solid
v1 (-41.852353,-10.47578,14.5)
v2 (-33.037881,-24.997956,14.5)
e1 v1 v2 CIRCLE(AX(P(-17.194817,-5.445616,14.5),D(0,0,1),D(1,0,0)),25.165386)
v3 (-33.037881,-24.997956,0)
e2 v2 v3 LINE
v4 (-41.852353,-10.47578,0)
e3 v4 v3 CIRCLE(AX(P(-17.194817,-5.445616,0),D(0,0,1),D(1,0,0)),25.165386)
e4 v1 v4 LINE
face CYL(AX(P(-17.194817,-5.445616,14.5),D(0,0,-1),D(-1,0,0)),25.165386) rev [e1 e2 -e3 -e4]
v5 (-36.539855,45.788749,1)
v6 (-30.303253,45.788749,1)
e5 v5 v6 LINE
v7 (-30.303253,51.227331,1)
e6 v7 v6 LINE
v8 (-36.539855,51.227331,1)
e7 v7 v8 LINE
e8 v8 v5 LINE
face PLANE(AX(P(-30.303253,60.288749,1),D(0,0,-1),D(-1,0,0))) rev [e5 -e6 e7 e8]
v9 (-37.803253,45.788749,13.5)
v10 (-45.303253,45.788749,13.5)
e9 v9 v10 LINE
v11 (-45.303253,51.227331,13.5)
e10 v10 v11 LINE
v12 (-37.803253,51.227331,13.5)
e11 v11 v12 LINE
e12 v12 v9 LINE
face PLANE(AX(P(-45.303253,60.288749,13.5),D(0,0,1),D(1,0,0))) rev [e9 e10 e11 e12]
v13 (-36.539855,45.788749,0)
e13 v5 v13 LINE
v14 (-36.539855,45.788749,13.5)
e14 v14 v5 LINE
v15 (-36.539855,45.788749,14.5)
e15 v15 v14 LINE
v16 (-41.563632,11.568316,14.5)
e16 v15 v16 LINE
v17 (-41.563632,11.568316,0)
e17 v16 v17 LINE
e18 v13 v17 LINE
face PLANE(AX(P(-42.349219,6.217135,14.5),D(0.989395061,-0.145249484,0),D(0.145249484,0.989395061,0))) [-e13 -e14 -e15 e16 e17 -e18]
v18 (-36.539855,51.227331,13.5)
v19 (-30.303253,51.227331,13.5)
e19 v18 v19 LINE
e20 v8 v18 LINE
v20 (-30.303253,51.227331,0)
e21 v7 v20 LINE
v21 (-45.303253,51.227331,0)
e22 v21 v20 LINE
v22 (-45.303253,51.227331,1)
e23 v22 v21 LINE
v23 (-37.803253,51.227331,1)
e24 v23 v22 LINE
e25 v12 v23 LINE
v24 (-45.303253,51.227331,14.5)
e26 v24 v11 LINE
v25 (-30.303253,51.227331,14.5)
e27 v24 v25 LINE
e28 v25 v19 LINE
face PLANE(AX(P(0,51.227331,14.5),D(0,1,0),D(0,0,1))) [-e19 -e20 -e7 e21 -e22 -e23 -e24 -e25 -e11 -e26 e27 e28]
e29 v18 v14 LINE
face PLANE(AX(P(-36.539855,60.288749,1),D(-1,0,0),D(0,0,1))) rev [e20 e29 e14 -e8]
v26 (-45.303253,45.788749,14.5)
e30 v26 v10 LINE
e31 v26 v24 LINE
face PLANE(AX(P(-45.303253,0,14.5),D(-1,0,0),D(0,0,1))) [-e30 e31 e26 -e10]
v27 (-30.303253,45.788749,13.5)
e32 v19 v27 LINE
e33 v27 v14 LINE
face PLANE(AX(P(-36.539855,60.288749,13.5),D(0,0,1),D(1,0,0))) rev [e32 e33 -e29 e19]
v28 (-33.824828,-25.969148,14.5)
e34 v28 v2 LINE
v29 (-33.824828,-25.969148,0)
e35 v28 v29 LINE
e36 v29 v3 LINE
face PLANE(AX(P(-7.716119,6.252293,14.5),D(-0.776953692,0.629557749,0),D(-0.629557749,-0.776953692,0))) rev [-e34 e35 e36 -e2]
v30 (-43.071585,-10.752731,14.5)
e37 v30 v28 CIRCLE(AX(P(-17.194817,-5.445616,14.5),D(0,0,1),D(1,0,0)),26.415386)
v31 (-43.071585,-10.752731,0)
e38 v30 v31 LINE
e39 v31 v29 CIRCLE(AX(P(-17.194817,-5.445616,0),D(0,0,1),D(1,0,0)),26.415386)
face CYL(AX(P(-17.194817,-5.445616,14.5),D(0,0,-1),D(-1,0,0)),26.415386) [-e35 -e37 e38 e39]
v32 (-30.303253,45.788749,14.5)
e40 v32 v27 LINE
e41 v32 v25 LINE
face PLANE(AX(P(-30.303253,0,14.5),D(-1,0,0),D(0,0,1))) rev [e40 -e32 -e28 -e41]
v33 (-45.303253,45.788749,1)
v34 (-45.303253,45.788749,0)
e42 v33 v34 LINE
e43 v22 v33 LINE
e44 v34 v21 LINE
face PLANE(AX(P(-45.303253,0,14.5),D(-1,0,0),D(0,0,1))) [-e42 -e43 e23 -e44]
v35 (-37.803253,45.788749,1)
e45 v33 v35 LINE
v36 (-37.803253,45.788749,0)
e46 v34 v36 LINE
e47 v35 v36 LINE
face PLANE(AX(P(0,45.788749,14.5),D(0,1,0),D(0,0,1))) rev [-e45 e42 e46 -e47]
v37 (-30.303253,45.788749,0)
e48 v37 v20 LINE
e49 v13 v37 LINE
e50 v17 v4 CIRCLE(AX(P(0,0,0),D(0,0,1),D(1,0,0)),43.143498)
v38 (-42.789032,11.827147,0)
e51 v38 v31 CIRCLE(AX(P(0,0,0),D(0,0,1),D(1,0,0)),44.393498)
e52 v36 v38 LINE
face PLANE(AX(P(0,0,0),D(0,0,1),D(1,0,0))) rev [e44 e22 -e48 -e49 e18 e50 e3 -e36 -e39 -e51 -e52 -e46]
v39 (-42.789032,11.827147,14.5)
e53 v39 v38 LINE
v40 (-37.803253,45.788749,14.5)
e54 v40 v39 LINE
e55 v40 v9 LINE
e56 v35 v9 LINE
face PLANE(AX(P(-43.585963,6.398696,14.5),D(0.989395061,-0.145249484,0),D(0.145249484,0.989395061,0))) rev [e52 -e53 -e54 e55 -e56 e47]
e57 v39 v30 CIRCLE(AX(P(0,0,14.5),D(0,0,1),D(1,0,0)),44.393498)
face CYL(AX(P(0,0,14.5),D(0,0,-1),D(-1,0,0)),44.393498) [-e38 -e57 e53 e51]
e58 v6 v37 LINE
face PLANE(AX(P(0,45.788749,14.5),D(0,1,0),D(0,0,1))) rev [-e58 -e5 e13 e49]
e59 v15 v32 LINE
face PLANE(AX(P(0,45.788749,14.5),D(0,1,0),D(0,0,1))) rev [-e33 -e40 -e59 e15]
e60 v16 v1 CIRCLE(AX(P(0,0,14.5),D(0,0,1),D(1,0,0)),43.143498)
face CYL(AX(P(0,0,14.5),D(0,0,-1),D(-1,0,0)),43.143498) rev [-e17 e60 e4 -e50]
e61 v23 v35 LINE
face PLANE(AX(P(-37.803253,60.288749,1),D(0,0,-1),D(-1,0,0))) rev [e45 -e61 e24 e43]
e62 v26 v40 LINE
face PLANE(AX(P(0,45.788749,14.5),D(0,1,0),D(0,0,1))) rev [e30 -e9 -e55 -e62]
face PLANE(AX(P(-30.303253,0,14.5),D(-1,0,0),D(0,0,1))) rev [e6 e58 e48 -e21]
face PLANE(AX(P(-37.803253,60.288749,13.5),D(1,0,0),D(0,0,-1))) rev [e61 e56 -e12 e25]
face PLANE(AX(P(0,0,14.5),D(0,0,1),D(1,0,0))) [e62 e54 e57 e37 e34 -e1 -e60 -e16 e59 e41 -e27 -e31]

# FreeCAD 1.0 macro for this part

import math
import FreeCAD as App
import Part
import Sketcher
from FreeCAD import Vector

doc = App.newDocument("Part")
params = doc.addObject("Spreadsheet::Sheet", "Params")
for row, (alias, value) in enumerate([
    ("sketch1_width", "15 mm"),
    ("sketch1_width2", "7.5 mm"),
    ("sketch1_length", "1.25 mm"),
    ("pad1_length", "14.5 mm"),
    ("sketch2_width", "7.5 mm"),
    ("sketch2_height", "12.5 mm"),
    ("pocket1_length", "14.5 mm"),
    ("sketch3_height", "12.5 mm"),
    ("pocket2_length", "14.5 mm"),
], start=1):
    params.set(f"A{row}", alias)
    params.set(f"B{row}", "=" + value)
    params.setAlias(f"B{row}", alias)

body = doc.addObject("PartDesign::Body", "Body")

sketch1 = body.newObject("Sketcher::SketchObject", "Sketch")
sketch1.AttachmentSupport = (doc.getObject("XY_Plane"), [""])
sketch1.MapMode = "FlatFace"
sketch1.addGeometry(Part.LineSegment(Vector(-30.3, 45.8, 0), Vector(-30.3, 51.2, 0)), False)
sketch1.addGeometry(Part.LineSegment(Vector(-30.3, 51.2, 0), Vector(-45.3, 51.2, 0)), False)
sketch1.addGeometry(Part.LineSegment(Vector(-45.3, 51.2, 0), Vector(-45.3, 45.8, 0)), False)
sketch1.addGeometry(Part.LineSegment(Vector(-45.3, 45.8, 0), Vector(-37.8, 45.8, 0)), False)
sketch1.addGeometry(Part.LineSegment(Vector(-37.8, 45.8, 0), Vector(-42.8, 11.8, 0)), False)
sketch1.addGeometry(Part.ArcOfCircle(Part.Circle(Vector(0, 0, 0), Vector(0, 0, 1), 44.4), math.radians(165), math.radians(194)), False)
sketch1.addGeometry(Part.ArcOfCircle(Part.Circle(Vector(-17.2, -5.4, 0), Vector(0, 0, 1), 26.4), math.radians(-168), math.radians(-129)), False)
sketch1.addGeometry(Part.LineSegment(Vector(-33.8, -26, 0), Vector(-33, -25, 0)), False)
sketch1.addGeometry(Part.ArcOfCircle(Part.Circle(Vector(-17.2, -5.4, 0), Vector(0, 0, 1), 25.2), math.radians(-168), math.radians(-129)), False)
sketch1.addGeometry(Part.ArcOfCircle(Part.Circle(Vector(0, 0, 0), Vector(0, 0, 1), 43.1), math.radians(164), math.radians(194)), False)
sketch1.addGeometry(Part.LineSegment(Vector(-41.6, 11.6, 0), Vector(-36.5, 45.8, 0)), False)
sketch1.addGeometry(Part.LineSegment(Vector(-36.5, 45.8, 0), Vector(-30.3, 45.8, 0)), False)
sketch1.addConstraint(Sketcher.Constraint("Coincident", 0, 2, 1, 1))
sketch1.addConstraint(Sketcher.Constraint("Coincident", 1, 2, 2, 1))
sketch1.addConstraint(Sketcher.Constraint("Coincident", 2, 2, 3, 1))
sketch1.addConstraint(Sketcher.Constraint("Coincident", 3, 2, 4, 1))
sketch1.addConstraint(Sketcher.Constraint("Coincident", 4, 2, 5, 1))
sketch1.addConstraint(Sketcher.Constraint("Coincident", 5, 2, 6, 1))
sketch1.addConstraint(Sketcher.Constraint("Coincident", 6, 2, 7, 1))
sketch1.addConstraint(Sketcher.Constraint("Coincident", 7, 2, 8, 2))
sketch1.addConstraint(Sketcher.Constraint("Coincident", 8, 1, 9, 2))
sketch1.addConstraint(Sketcher.Constraint("Coincident", 9, 1, 10, 1))
sketch1.addConstraint(Sketcher.Constraint("Coincident", 10, 2, 11, 1))
sketch1.addConstraint(Sketcher.Constraint("Coincident", 11, 2, 0, 1))
sketch1.addConstraint(Sketcher.Constraint("Vertical", 0))
sketch1.addConstraint(Sketcher.Constraint("Horizontal", 1))
sketch1.addConstraint(Sketcher.Constraint("Vertical", 2))
sketch1.addConstraint(Sketcher.Constraint("Horizontal", 3))
sketch1.addConstraint(Sketcher.Constraint("Horizontal", 11))
sketch1.addConstraint(Sketcher.Constraint("Coincident", 5, 3, -1, 1))
sketch1.addConstraint(Sketcher.Constraint("Coincident", 9, 3, -1, 1))
sketch1.addConstraint(Sketcher.Constraint("Coincident", 8, 3, 6, 3))
sketch1.addConstraint(Sketcher.Constraint("Parallel", 4, 10))
sketch1.addConstraint(Sketcher.Constraint("Horizontal", 3, 2, 10, 2))
sketch1.addConstraint(Sketcher.Constraint("DistanceX", 1, 2, 1, 1, 15.0))
sketch1.addConstraint(Sketcher.Constraint("DistanceX", 3, 1, 3, 2, 7.5))
sketch1.addConstraint(Sketcher.Constraint("Radius", 5, 44.393498))
sketch1.addConstraint(Sketcher.Constraint("Radius", 9, 43.143498))
sketch1.addConstraint(Sketcher.Constraint("Distance", 7, 1.25))
sketch1.addConstraint(Sketcher.Constraint("DistanceX", 11, 1, 11, 2, 6.236602))
sketch1.addConstraint(Sketcher.Constraint("Radius", 6, 26.415386))
sketch1.addConstraint(Sketcher.Constraint("DistanceY", 0, 1, 0, 2, 5.438582))
sketch1.addConstraint(Sketcher.Constraint("Distance", 10, 34.587229))
sketch1.addConstraint(Sketcher.Constraint("DistanceY", -1, 1, 0, 2, 51.227331))
sketch1.addConstraint(Sketcher.Constraint("DistanceY", 5, 2, -1, 1, 10.752731))
sketch1.addConstraint(Sketcher.Constraint("DistanceX", 7, 2, -1, 1, 33.037881))
sketch1.addConstraint(Sketcher.Constraint("DistanceX", 2, 2, 4, 2, 2.514221))
sketch1.addConstraint(Sketcher.Constraint("DistanceX", 5, 2, 8, 3, 25.876769))
sketch1.addConstraint(Sketcher.Constraint("DistanceX", 6, 2, 8, 3, 16.630011))
sketch1.setExpression("Constraints[22]", "Params.sketch1_width")
sketch1.setExpression("Constraints[23]", "Params.sketch1_width2")
sketch1.setExpression("Constraints[26]", "Params.sketch1_length")
pad1 = body.newObject("PartDesign::Pad", "Pad")
pad1.Profile = sketch1
pad1.setExpression("Length", "Params.pad1_length")

sketch2 = body.newObject("Sketcher::SketchObject", "Sketch001")
sketch2.AttachmentSupport = (doc.getObject("XZ_Plane"), [""])
sketch2.MapMode = "FlatFace"
sketch2.AttachmentOffset = App.Placement(Vector(0, 0, -45.788749), App.Rotation())
sketch2.addGeometry(Part.LineSegment(Vector(-45, 14, 0), Vector(-45, 1, 0)), False)
sketch2.addGeometry(Part.LineSegment(Vector(-45, 1, 0), Vector(-38, 1, 0)), False)
sketch2.addGeometry(Part.LineSegment(Vector(-38, 1, 0), Vector(-38, 14, 0)), False)
sketch2.addGeometry(Part.LineSegment(Vector(-38, 14, 0), Vector(-45, 14, 0)), False)
sketch2.addConstraint(Sketcher.Constraint("Coincident", 0, 2, 1, 1))
sketch2.addConstraint(Sketcher.Constraint("Coincident", 1, 2, 2, 1))
sketch2.addConstraint(Sketcher.Constraint("Coincident", 2, 2, 3, 1))
sketch2.addConstraint(Sketcher.Constraint("Coincident", 3, 2, 0, 1))
sketch2.addConstraint(Sketcher.Constraint("Vertical", 0))
sketch2.addConstraint(Sketcher.Constraint("Horizontal", 1))
sketch2.addConstraint(Sketcher.Constraint("Vertical", 2))
sketch2.addConstraint(Sketcher.Constraint("Horizontal", 3))
sketch2.addConstraint(Sketcher.Constraint("DistanceX", 1, 1, 1, 2, 7.5))
sketch2.addConstraint(Sketcher.Constraint("DistanceY", 0, 2, 0, 1, 12.5))
sketch2.addConstraint(Sketcher.Constraint("DistanceY", -1, 1, 0, 2, 1.0))
sketch2.addConstraint(Sketcher.Constraint("DistanceX", 0, 2, -1, 1, 45.303253))
sketch2.setExpression("Constraints[8]", "Params.sketch2_width")
sketch2.setExpression("Constraints[9]", "Params.sketch2_height")
pocket1 = body.newObject("PartDesign::Pocket", "Pocket")
pocket1.Profile = sketch2
pocket1.setExpression("Length", "Params.pocket1_length")

sketch3 = body.newObject("Sketcher::SketchObject", "Sketch002")
sketch3.AttachmentSupport = (doc.getObject("XZ_Plane"), [""])
sketch3.MapMode = "FlatFace"
sketch3.AttachmentOffset = App.Placement(Vector(0, 0, -45.788749), App.Rotation())
sketch3.addGeometry(Part.LineSegment(Vector(-37, 14, 0), Vector(-37, 1, 0)), False)
sketch3.addGeometry(Part.LineSegment(Vector(-37, 1, 0), Vector(-30, 1, 0)), False)
sketch3.addGeometry(Part.LineSegment(Vector(-30, 1, 0), Vector(-30, 14, 0)), False)
sketch3.addGeometry(Part.LineSegment(Vector(-30, 14, 0), Vector(-37, 14, 0)), False)
sketch3.addConstraint(Sketcher.Constraint("Coincident", 0, 2, 1, 1))
sketch3.addConstraint(Sketcher.Constraint("Coincident", 1, 2, 2, 1))
sketch3.addConstraint(Sketcher.Constraint("Coincident", 2, 2, 3, 1))
sketch3.addConstraint(Sketcher.Constraint("Coincident", 3, 2, 0, 1))
sketch3.addConstraint(Sketcher.Constraint("Vertical", 0))
sketch3.addConstraint(Sketcher.Constraint("Horizontal", 1))
sketch3.addConstraint(Sketcher.Constraint("Vertical", 2))
sketch3.addConstraint(Sketcher.Constraint("Horizontal", 3))
sketch3.addConstraint(Sketcher.Constraint("DistanceY", 0, 2, 0, 1, 12.5))
sketch3.addConstraint(Sketcher.Constraint("DistanceY", -1, 1, 0, 2, 1.0))
sketch3.addConstraint(Sketcher.Constraint("DistanceX", 1, 1, 1, 2, 6.236602))
sketch3.addConstraint(Sketcher.Constraint("DistanceX", 0, 2, -1, 1, 36.539855))
sketch3.setExpression("Constraints[8]", "Params.sketch3_height")
pocket2 = body.newObject("PartDesign::Pocket", "Pocket001")
pocket2.Profile = sketch3
pocket2.setExpression("Length", "Params.pocket2_length")

doc.recompute()
